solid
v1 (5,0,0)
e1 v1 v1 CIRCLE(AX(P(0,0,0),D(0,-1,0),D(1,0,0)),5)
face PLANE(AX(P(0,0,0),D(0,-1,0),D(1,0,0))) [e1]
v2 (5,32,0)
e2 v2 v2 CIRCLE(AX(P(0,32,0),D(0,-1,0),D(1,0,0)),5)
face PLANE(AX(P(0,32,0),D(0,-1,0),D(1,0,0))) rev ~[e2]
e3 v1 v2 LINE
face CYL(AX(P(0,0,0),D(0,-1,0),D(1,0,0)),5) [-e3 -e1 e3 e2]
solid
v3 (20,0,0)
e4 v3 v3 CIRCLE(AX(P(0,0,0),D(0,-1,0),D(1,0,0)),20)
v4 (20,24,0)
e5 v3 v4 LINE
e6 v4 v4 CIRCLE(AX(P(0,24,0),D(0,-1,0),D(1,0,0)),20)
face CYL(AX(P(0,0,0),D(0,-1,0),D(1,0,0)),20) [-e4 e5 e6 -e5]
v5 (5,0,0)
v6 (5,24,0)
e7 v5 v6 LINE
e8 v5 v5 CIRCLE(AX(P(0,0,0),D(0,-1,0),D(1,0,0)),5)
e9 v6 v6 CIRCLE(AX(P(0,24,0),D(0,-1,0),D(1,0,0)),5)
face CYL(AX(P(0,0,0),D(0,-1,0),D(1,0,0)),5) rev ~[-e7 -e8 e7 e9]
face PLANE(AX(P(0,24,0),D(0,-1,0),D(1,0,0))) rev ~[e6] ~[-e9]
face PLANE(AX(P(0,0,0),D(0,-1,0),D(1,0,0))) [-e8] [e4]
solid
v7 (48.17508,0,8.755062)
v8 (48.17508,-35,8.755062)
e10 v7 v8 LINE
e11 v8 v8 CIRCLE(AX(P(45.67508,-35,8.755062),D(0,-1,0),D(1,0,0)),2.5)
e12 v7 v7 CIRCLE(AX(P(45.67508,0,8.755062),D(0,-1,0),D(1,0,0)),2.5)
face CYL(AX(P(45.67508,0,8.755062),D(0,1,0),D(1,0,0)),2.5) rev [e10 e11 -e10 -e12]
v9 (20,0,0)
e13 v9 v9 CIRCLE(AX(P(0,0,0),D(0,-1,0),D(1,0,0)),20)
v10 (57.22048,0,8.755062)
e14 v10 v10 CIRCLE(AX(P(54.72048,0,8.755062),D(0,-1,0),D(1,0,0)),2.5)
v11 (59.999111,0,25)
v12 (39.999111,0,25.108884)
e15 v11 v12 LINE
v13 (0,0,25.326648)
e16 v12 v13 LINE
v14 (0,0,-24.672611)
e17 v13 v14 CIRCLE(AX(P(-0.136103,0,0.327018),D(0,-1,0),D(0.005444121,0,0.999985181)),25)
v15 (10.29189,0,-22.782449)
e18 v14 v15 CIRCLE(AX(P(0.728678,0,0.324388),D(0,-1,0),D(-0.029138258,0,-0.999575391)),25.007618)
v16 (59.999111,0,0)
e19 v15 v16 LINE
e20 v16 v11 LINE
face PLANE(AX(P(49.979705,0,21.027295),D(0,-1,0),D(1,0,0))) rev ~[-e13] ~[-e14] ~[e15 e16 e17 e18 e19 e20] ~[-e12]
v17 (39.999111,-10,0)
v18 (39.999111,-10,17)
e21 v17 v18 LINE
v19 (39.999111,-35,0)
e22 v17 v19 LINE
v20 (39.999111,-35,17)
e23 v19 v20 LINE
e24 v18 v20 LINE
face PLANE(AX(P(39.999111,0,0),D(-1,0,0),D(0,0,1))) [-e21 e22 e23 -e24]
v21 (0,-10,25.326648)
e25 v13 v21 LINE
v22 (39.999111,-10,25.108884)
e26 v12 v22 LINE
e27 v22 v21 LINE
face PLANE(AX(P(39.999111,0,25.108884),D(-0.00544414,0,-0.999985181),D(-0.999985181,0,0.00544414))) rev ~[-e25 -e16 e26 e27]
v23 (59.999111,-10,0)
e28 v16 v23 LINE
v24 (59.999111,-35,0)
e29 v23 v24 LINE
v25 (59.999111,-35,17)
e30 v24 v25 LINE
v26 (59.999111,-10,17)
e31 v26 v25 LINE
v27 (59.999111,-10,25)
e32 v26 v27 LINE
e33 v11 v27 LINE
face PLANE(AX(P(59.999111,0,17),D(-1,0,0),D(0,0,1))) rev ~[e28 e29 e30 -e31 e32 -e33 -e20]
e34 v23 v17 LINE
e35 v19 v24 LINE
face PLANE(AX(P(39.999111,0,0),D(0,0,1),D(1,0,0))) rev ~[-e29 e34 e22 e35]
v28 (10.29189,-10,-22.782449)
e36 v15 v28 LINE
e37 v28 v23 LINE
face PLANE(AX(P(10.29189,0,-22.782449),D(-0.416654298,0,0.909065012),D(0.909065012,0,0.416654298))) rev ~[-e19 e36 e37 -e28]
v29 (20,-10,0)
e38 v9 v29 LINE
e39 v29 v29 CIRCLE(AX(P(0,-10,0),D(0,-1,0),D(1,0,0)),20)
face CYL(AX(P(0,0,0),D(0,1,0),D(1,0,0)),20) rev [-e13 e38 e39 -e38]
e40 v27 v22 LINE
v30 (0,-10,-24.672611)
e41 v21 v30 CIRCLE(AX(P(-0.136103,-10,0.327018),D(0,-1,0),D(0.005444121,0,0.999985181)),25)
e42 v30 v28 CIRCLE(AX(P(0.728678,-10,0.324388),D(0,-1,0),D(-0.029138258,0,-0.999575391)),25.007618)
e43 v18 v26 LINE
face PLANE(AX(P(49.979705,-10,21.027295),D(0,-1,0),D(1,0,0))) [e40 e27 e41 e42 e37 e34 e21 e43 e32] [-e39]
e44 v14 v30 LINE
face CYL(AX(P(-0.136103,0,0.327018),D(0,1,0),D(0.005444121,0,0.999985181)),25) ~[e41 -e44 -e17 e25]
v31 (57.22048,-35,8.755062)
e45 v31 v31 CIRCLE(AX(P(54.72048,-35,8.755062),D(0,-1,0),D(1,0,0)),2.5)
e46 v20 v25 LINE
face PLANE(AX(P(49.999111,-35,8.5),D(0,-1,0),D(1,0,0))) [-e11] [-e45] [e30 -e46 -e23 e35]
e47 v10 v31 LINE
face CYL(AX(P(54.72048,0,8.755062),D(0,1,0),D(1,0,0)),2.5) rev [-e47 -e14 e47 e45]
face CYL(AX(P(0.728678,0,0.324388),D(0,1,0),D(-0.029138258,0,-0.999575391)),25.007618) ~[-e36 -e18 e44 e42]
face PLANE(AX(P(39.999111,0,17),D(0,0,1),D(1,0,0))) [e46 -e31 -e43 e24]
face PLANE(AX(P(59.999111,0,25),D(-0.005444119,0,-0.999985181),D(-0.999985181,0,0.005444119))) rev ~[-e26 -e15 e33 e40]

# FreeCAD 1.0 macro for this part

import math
import FreeCAD as App
import Part
import Sketcher

V = App.Vector


def add_polygon(sketch, points):
    """Adds a closed chain of lines whose ends are joined by coincident constraints."""
    first, n = sketch.GeometryCount, len(points)
    for a, b in zip(points, points[1:] + points[:1]):
        sketch.addGeometry(Part.LineSegment(App.Vector(*a, 0), App.Vector(*b, 0)), False)
    for i in range(n):
        sketch.addConstraint(Sketcher.Constraint("Coincident", first + i, 2, first + (i + 1) % n, 1))

doc = App.newDocument("Part")
params = doc.addObject("Spreadsheet::Sheet", "Params")
for row, (alias, value) in enumerate([
    ("sketch1_diameter", "40 mm"),
    ("sketch1_diameter2", "10 mm"),
    ("pad1_length", "24 mm"),
    ("sketch2_diameter", "40 mm"),
    ("sketch2_radius", "25 mm"),
    ("sketch2_width", "20 mm"),
    ("pad2_length", "10 mm"),
    ("sketch3_diameter", "5 mm"),
    ("sketch3_width", "20 mm"),
    ("sketch3_height", "17 mm"),
    ("pad3_length", "35 mm"),
    ("sketch4_width", "20 mm"),
    ("sketch4_height", "8 mm"),
    ("pad4_length", "10 mm"),
    ("sketch5_diameter", "10 mm"),
    ("pad5_length", "32 mm"),
], start=1):
    params.set(f"A{row}", alias)
    params.set(f"B{row}", "=" + value)
    params.setAlias(f"B{row}", alias)

body = doc.addObject("PartDesign::Body", "Body")

sketch1 = body.newObject("Sketcher::SketchObject", "Sketch")
sketch1.AttachmentSupport = (doc.getObject("XZ_Plane"), [""])
sketch1.MapMode = "FlatFace"
sketch1.addGeometry(Part.Circle(V(0, 0, 0), V(0, 0, 1), 20), False)
sketch1.addGeometry(Part.Circle(V(0, 0, 0), V(0, 0, 1), 5), False)
sketch1.addConstraint(Sketcher.Constraint("Coincident", 0, 3, -1, 1))
sketch1.addConstraint(Sketcher.Constraint("Coincident", 1, 3, -1, 1))
sketch1.addConstraint(Sketcher.Constraint("Diameter", 0, 40.0))
sketch1.addConstraint(Sketcher.Constraint("Diameter", 1, 10.0))
sketch1.setExpression("Constraints[2]", "Params.sketch1_diameter")
sketch1.setExpression("Constraints[3]", "Params.sketch1_diameter2")
pad1 = body.newObject("PartDesign::Pad", "Pad")
pad1.Profile = sketch1
pad1.setExpression("Length", "Params.pad1_length")
pad1.Reversed = True
body2 = doc.addObject("PartDesign::Body", "Body001")

sketch2 = body2.newObject("Sketcher::SketchObject", "Sketch001")
sketch2.AttachmentSupport = (doc.getObject("XZ_Plane001"), [""])
sketch2.MapMode = "FlatFace"
sketch2.addGeometry(Part.LineSegment(V(40, 25, 0), V(0, 25, 0)), False)
sketch2.addGeometry(Part.ArcOfCircle(Part.Circle(V(0, 0, 0), V(0, 0, 1), 25), math.radians(90), math.radians(270)), False)
sketch2.addGeometry(Part.ArcOfCircle(Part.Circle(V(1, 0, 0), V(0, 0, 1), 25), math.radians(-92), math.radians(-68)), False)
sketch2.addGeometry(Part.LineSegment(V(10, -23, 0), V(60, 0, 0)), False)
sketch2.addGeometry(Part.LineSegment(V(60, 0, 0), V(40, 0, 0)), False)
sketch2.addGeometry(Part.LineSegment(V(40, 0, 0), V(40, 25, 0)), False)
sketch2.addGeometry(Part.Circle(V(0, 0, 0), V(0, 0, 1), 20), False)
sketch2.addConstraint(Sketcher.Constraint("Tangent", 0, 2, 1, 1))
sketch2.addConstraint(Sketcher.Constraint("Coincident", 1, 2, 2, 1))
sketch2.addConstraint(Sketcher.Constraint("Coincident", 2, 2, 3, 1))
sketch2.addConstraint(Sketcher.Constraint("Coincident", 3, 2, 4, 1))
sketch2.addConstraint(Sketcher.Constraint("Coincident", 4, 2, 5, 1))
sketch2.addConstraint(Sketcher.Constraint("Coincident", 5, 2, 0, 1))
sketch2.addConstraint(Sketcher.Constraint("Horizontal", 4))
sketch2.addConstraint(Sketcher.Constraint("Vertical", 5))
sketch2.addConstraint(Sketcher.Constraint("Coincident", 6, 3, -1, 1))
sketch2.addConstraint(Sketcher.Constraint("PointOnObject", 0, 2, -2))
sketch2.addConstraint(Sketcher.Constraint("PointOnObject", 1, 2, -2))
sketch2.addConstraint(Sketcher.Constraint("PointOnObject", 3, 2, -1))
sketch2.addConstraint(Sketcher.Constraint("Diameter", 6, 40.0))
sketch2.addConstraint(Sketcher.Constraint("Radius", 1, 25.0))
sketch2.addConstraint(Sketcher.Constraint("DistanceX", 4, 2, 4, 1, 20.0))
sketch2.addConstraint(Sketcher.Constraint("Radius", 2, 25.007618))
sketch2.addConstraint(Sketcher.Constraint("DistanceY", 1, 2, 2, 3, 24.996999))
sketch2.addConstraint(Sketcher.Constraint("Distance", 3, 54.679501))
sketch2.addConstraint(Sketcher.Constraint("DistanceY", 5, 1, 5, 2, 25.108884))
sketch2.addConstraint(Sketcher.Constraint("DistanceY", -1, 1, 1, 3, 0.327018))
sketch2.addConstraint(Sketcher.Constraint("DistanceX", -1, 1, 2, 2, 10.29189))
sketch2.setExpression("Constraints[12]", "Params.sketch2_diameter")
sketch2.setExpression("Constraints[13]", "Params.sketch2_radius")
sketch2.setExpression("Constraints[14]", "Params.sketch2_width")
pad2 = body2.newObject("PartDesign::Pad", "Pad001")
pad2.Profile = sketch2
pad2.setExpression("Length", "Params.pad2_length")

sketch3 = body2.newObject("Sketcher::SketchObject", "Sketch002")
sketch3.AttachmentSupport = (doc.getObject("XZ_Plane001"), [""])
sketch3.MapMode = "FlatFace"
add_polygon(sketch3, [(40, 17), (40, 0), (60, 0), (60, 17)])
sketch3.addGeometry(Part.Circle(V(45.7, 8.8, 0), V(0, 0, 1), 2.5), False)
sketch3.addGeometry(Part.Circle(V(54.7, 8.8, 0), V(0, 0, 1), 2.5), False)
sketch3.addConstraint(Sketcher.Constraint("Vertical", 0))
sketch3.addConstraint(Sketcher.Constraint("Horizontal", 1))
sketch3.addConstraint(Sketcher.Constraint("Vertical", 2))
sketch3.addConstraint(Sketcher.Constraint("Horizontal", 3))
sketch3.addConstraint(Sketcher.Constraint("Equal", 4, 5))
sketch3.addConstraint(Sketcher.Constraint("PointOnObject", 0, 2, -1))
sketch3.addConstraint(Sketcher.Constraint("Horizontal", 4, 3, 5, 3))
sketch3.addConstraint(Sketcher.Constraint("Diameter", 4, 5.0))
sketch3.addConstraint(Sketcher.Constraint("DistanceX", 1, 1, 1, 2, 20.0))
sketch3.addConstraint(Sketcher.Constraint("DistanceY", 0, 2, 0, 1, 17.0))
sketch3.addConstraint(Sketcher.Constraint("DistanceX", 4, 3, 5, 3, 9.0454))
sketch3.addConstraint(Sketcher.Constraint("DistanceX", -1, 1, 4, 3, 45.67508))
sketch3.addConstraint(Sketcher.Constraint("DistanceX", -1, 1, 0, 2, 39.999111))
sketch3.addConstraint(Sketcher.Constraint("DistanceY", -1, 1, 4, 3, 8.755062))
sketch3.setExpression("Constraints[11]", "Params.sketch3_diameter")
sketch3.setExpression("Constraints[12]", "Params.sketch3_width")
sketch3.setExpression("Constraints[13]", "Params.sketch3_height")
pad3 = body2.newObject("PartDesign::Pad", "Pad002")
pad3.Profile = sketch3
pad3.setExpression("Length", "Params.pad3_length")

sketch4 = body2.newObject("Sketcher::SketchObject", "Sketch003")
sketch4.AttachmentSupport = (doc.getObject("XZ_Plane001"), [""])
sketch4.MapMode = "FlatFace"
add_polygon(sketch4, [(60, 25), (40, 25), (40, 17), (60, 17)])
sketch4.addConstraint(Sketcher.Constraint("Vertical", 1))
sketch4.addConstraint(Sketcher.Constraint("Horizontal", 2))
sketch4.addConstraint(Sketcher.Constraint("Vertical", 3))
sketch4.addConstraint(Sketcher.Constraint("DistanceX", 2, 1, 2, 2, 20.0))
sketch4.addConstraint(Sketcher.Constraint("DistanceY", 3, 1, 3, 2, 8.0))
sketch4.addConstraint(Sketcher.Constraint("DistanceY", -1, 1, 1, 2, 17.0))
sketch4.addConstraint(Sketcher.Constraint("DistanceY", 1, 2, 1, 1, 8.108884))
sketch4.addConstraint(Sketcher.Constraint("DistanceX", -1, 1, 0, 2, 39.999111))
sketch4.setExpression("Constraints[7]", "Params.sketch4_width")
sketch4.setExpression("Constraints[8]", "Params.sketch4_height")
pad4 = body2.newObject("PartDesign::Pad", "Pad003")
pad4.Profile = sketch4
pad4.setExpression("Length", "Params.pad4_length")
body3 = doc.addObject("PartDesign::Body", "Body002")

sketch5 = body3.newObject("Sketcher::SketchObject", "Sketch004")
sketch5.AttachmentSupport = (doc.getObject("XZ_Plane002"), [""])
sketch5.MapMode = "FlatFace"
sketch5.addGeometry(Part.Circle(V(0, 0, 0), V(0, 0, 1), 5), False)
sketch5.addConstraint(Sketcher.Constraint("Coincident", 0, 3, -1, 1))
sketch5.addConstraint(Sketcher.Constraint("Diameter", 0, 10.0))
sketch5.setExpression("Constraints[1]", "Params.sketch5_diameter")
pad5 = body3.newObject("PartDesign::Pad", "Pad004")
pad5.Profile = sketch5
pad5.setExpression("Length", "Params.pad5_length")
pad5.Reversed = True

doc.recompute()
